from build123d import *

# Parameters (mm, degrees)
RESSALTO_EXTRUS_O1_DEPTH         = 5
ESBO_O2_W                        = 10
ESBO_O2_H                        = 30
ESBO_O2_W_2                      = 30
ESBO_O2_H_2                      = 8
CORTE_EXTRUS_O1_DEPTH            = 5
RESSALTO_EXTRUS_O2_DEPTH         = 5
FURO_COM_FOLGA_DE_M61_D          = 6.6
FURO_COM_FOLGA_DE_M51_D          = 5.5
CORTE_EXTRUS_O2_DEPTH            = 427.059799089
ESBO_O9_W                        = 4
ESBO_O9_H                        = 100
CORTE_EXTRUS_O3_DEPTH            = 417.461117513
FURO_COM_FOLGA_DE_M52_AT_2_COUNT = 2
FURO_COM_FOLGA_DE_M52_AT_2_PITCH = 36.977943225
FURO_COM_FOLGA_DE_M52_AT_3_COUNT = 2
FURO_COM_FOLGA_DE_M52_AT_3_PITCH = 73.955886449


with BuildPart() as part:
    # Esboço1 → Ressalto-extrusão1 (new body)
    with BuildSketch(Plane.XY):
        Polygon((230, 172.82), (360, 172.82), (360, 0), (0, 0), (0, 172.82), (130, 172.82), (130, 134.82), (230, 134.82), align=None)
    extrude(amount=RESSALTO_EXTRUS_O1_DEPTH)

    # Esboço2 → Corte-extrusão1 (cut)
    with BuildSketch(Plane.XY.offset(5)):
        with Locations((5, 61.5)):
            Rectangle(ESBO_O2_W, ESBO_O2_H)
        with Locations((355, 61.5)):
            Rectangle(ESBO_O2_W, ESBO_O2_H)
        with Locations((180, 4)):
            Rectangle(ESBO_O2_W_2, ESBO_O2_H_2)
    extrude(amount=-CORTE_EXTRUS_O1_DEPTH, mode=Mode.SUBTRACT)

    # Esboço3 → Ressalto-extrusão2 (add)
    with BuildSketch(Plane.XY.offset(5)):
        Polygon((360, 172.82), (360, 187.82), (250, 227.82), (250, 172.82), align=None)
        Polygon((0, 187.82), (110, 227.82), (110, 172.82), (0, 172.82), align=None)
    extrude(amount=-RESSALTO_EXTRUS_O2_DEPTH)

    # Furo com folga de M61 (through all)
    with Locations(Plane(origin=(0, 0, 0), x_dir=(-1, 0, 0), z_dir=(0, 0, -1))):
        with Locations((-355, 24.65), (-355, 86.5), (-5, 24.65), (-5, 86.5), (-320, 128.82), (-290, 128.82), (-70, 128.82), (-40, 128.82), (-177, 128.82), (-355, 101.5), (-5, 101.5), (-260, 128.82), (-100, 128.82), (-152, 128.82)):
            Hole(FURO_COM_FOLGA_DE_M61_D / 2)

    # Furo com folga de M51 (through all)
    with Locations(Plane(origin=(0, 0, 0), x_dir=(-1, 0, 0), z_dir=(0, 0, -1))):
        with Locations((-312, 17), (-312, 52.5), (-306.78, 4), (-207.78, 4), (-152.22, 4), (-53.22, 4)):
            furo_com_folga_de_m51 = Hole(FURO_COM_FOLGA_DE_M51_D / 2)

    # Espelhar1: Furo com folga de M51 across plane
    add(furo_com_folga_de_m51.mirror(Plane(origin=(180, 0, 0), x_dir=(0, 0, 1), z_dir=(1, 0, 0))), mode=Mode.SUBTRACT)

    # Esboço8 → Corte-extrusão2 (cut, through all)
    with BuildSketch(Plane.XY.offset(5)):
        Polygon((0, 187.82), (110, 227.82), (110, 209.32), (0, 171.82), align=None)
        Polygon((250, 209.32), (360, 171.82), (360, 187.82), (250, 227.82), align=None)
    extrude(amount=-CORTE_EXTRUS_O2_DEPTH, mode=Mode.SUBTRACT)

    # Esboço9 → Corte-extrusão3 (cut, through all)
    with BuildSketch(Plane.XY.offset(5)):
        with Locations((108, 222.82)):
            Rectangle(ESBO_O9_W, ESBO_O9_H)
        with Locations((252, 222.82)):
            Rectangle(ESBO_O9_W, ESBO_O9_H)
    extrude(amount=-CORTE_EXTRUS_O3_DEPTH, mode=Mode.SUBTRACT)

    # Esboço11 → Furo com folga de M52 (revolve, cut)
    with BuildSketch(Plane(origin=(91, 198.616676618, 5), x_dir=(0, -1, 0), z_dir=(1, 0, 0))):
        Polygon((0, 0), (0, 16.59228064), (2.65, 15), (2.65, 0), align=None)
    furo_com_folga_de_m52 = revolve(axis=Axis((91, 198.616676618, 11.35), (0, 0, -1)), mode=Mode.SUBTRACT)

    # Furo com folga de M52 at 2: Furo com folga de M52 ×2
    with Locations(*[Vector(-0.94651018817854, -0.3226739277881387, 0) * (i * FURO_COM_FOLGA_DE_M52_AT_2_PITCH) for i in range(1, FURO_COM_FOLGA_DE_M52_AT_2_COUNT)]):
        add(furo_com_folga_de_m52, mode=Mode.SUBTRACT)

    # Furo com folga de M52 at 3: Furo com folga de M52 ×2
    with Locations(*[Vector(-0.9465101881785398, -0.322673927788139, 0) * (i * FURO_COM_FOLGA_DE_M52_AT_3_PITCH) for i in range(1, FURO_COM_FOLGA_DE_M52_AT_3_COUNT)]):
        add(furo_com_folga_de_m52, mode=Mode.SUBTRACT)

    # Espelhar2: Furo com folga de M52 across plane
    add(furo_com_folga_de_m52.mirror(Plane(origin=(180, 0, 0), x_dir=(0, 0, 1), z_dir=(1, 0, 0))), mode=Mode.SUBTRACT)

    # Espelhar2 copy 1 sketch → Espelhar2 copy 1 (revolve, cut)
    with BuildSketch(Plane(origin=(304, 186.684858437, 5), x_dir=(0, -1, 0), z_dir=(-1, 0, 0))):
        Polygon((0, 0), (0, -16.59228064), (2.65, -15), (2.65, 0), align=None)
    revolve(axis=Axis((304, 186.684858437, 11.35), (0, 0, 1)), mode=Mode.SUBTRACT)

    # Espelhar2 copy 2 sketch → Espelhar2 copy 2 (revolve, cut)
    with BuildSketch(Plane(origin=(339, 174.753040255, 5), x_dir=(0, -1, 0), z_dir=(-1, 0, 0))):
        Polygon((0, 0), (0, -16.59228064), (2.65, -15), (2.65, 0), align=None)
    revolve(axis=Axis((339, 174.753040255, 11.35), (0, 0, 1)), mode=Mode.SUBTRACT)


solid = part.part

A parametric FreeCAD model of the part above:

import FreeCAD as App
import Part
import Sketcher
Q = App.Units.Quantity


def add_polygon(sketch, points):
    """Adds a closed chain of lines whose ends are joined by coincident constraints."""
    first, n = sketch.GeometryCount, len(points)
    for a, b in zip(points, points[1:] + points[:1]):
        sketch.addGeometry(Part.LineSegment(App.Vector(*a, 0), App.Vector(*b, 0)), False)
    for i in range(n):
        sketch.addConstraint(Sketcher.Constraint("Coincident", first + i, 2, first + (i + 1) % n, 1))

doc = App.newDocument("Part")
body = doc.addObject("PartDesign::Body", "Body")

# Sketch on XY plane
sketch1 = body.newObject("Sketcher::SketchObject", "Sketch")
sketch1.AttachmentSupport = (doc.getObject("XY_Plane"), [""])
sketch1.MapMode = "FlatFace"
add_polygon(sketch1, [(360, 173), (230, 173), (230, 135), (130, 135), (130, 173), (0, 173), (0, 0), (360, 0)])  # lines 0-7
sketch1.addConstraint(Sketcher.Constraint("Horizontal", 0))
sketch1.addConstraint(Sketcher.Constraint("Vertical", 1))
sketch1.addConstraint(Sketcher.Constraint("Horizontal", 2))
sketch1.addConstraint(Sketcher.Constraint("Vertical", 3))
sketch1.addConstraint(Sketcher.Constraint("Horizontal", 4))
sketch1.addConstraint(Sketcher.Constraint("Vertical", 5))
sketch1.addConstraint(Sketcher.Constraint("Horizontal", 6))
sketch1.addConstraint(Sketcher.Constraint("Vertical", 7))
sketch1.addConstraint(Sketcher.Constraint("Coincident", 5, 2, -1, 1))
sketch1.addConstraint(Sketcher.Constraint("Horizontal", 0, 2, 3, 2))
sketch1.addConstraint(Sketcher.Constraint("Equal", 0, 4))
sketch1.addConstraint(Sketcher.Constraint("DistanceX", 0, 2, 0, 1, 130.0))
sketch1.addConstraint(Sketcher.Constraint("DistanceX", 2, 2, 2, 1, 100.0))
sketch1.addConstraint(Sketcher.Constraint("DistanceY", 1, 2, 1, 1, 38.0))
sketch1.addConstraint(Sketcher.Constraint("DistanceY", 5, 2, 5, 1, 172.82))
pad1 = body.newObject("PartDesign::Pad", "Pad")
pad1.Profile = sketch1
pad1.Length = 5

# Sketch on XY plane
sketch2 = body.newObject("Sketcher::SketchObject", "Sketch001")
sketch2.AttachmentSupport = (doc.getObject("XY_Plane"), [""])
sketch2.MapMode = "FlatFace"
sketch2.AttachmentOffset = App.Placement(App.Vector(0, 0, 5), App.Rotation())
add_polygon(sketch2, [(0, 76), (0, 46), (10, 46), (10, 76)])  # lines 0-3
add_polygon(sketch2, [(350, 76), (350, 46), (360, 46), (360, 76)])  # lines 4-7
add_polygon(sketch2, [(165, 8), (165, 0), (195, 0), (195, 8)])  # lines 8-11
sketch2.addConstraint(Sketcher.Constraint("Vertical", 0))
sketch2.addConstraint(Sketcher.Constraint("Horizontal", 1))
sketch2.addConstraint(Sketcher.Constraint("Vertical", 2))
sketch2.addConstraint(Sketcher.Constraint("Horizontal", 3))
sketch2.addConstraint(Sketcher.Constraint("Vertical", 4))
sketch2.addConstraint(Sketcher.Constraint("Horizontal", 5))
sketch2.addConstraint(Sketcher.Constraint("Vertical", 6))
sketch2.addConstraint(Sketcher.Constraint("Horizontal", 7))
sketch2.addConstraint(Sketcher.Constraint("Vertical", 8))
sketch2.addConstraint(Sketcher.Constraint("Horizontal", 9))
sketch2.addConstraint(Sketcher.Constraint("Vertical", 10))
sketch2.addConstraint(Sketcher.Constraint("Horizontal", 11))
sketch2.addConstraint(Sketcher.Constraint("PointOnObject", 0, 2, -2))
sketch2.addConstraint(Sketcher.Constraint("PointOnObject", 8, 2, -1))
sketch2.addConstraint(Sketcher.Constraint("Horizontal", 1, 2, 4, 2))
sketch2.addConstraint(Sketcher.Constraint("Horizontal", 3, 2, 6, 2))
sketch2.addConstraint(Sketcher.Constraint("Equal", 3, 5))
sketch2.addConstraint(Sketcher.Constraint("Equal", 11, 0))
sketch2.addConstraint(Sketcher.Constraint("DistanceX", 1, 1, 1, 2, 10.0))
sketch2.addConstraint(Sketcher.Constraint("DistanceX", 9, 1, 9, 2, 30.0))
sketch2.addConstraint(Sketcher.Constraint("DistanceY", 8, 2, 8, 1, 8.0))
sketch2.addConstraint(Sketcher.Constraint("DistanceX", -1, 1, 4, 2, 350.0))
sketch2.addConstraint(Sketcher.Constraint("DistanceX", -1, 1, 8, 2, 165.0))
sketch2.addConstraint(Sketcher.Constraint("DistanceY", -1, 1, 0, 2, 46.5))
pocket1 = body.newObject("PartDesign::Pocket", "Pocket")
pocket1.Profile = sketch2
pocket1.Length = 5

# Sketch on XY plane
sketch3 = body.newObject("Sketcher::SketchObject", "Sketch002")
sketch3.AttachmentSupport = (doc.getObject("XY_Plane"), [""])
sketch3.MapMode = "FlatFace"
sketch3.AttachmentOffset = App.Placement(App.Vector(0, 0, 5), App.Rotation())
add_polygon(sketch3, [(360, 173), (360, 188), (250, 228), (250, 173)])  # lines 0-3
add_polygon(sketch3, [(110, 228), (0, 188), (0, 173), (110, 173)])  # lines 4-7
sketch3.addConstraint(Sketcher.Constraint("Vertical", 0))
sketch3.addConstraint(Sketcher.Constraint("Vertical", 2))
sketch3.addConstraint(Sketcher.Constraint("Horizontal", 3))
sketch3.addConstraint(Sketcher.Constraint("Vertical", 5))
sketch3.addConstraint(Sketcher.Constraint("Horizontal", 6))
sketch3.addConstraint(Sketcher.Constraint("Vertical", 7))
sketch3.addConstraint(Sketcher.Constraint("PointOnObject", 4, 2, -2))
sketch3.addConstraint(Sketcher.Constraint("Horizontal", 0, 2, 4, 2))
sketch3.addConstraint(Sketcher.Constraint("Horizontal", 3, 2, 5, 2))
sketch3.addConstraint(Sketcher.Constraint("Horizontal", 1, 2, 7, 2))
sketch3.addConstraint(Sketcher.Constraint("Equal", 3, 6))
sketch3.addConstraint(Sketcher.Constraint("DistanceX", 3, 1, 3, 2, 110.0))
sketch3.addConstraint(Sketcher.Constraint("DistanceY", 0, 1, 0, 2, 15.0))
sketch3.addConstraint(Sketcher.Constraint("DistanceY", 2, 2, 2, 1, 55.0))
sketch3.addConstraint(Sketcher.Constraint("DistanceX", -1, 1, 0, 2, 360.0))
sketch3.addConstraint(Sketcher.Constraint("DistanceY", -1, 1, 0, 2, 187.82))
pad2 = body.newObject("PartDesign::Pad", "Pad001")
pad2.Profile = sketch3
pad2.Length = 5
pad2.Reversed = True

# Sketch on XY plane
sketch4 = body.newObject("Sketcher::SketchObject", "Sketch003")
sketch4.AttachmentSupport = (doc.getObject("XY_Plane"), [""])
sketch4.MapMode = "FlatFace"
sketch4.addGeometry(Part.Circle(App.Vector(355, 24.6, 0), App.Vector(0, 0, 1), 3.3), False)
sketch4.addGeometry(Part.Circle(App.Vector(355, 86.5, 0), App.Vector(0, 0, 1), 3.3), False)
sketch4.addGeometry(Part.Circle(App.Vector(5, 24.6, 0), App.Vector(0, 0, 1), 3.3), False)
sketch4.addGeometry(Part.Circle(App.Vector(5, 86.5, 0), App.Vector(0, 0, 1), 3.3), False)
sketch4.addGeometry(Part.Circle(App.Vector(320, 128.8, 0), App.Vector(0, 0, 1), 3.3), False)
sketch4.addGeometry(Part.Circle(App.Vector(290, 128.8, 0), App.Vector(0, 0, 1), 3.3), False)
sketch4.addGeometry(Part.Circle(App.Vector(70, 128.8, 0), App.Vector(0, 0, 1), 3.3), False)
sketch4.addGeometry(Part.Circle(App.Vector(40, 128.8, 0), App.Vector(0, 0, 1), 3.3), False)
sketch4.addGeometry(Part.Circle(App.Vector(177, 128.8, 0), App.Vector(0, 0, 1), 3.3), False)
sketch4.addGeometry(Part.Circle(App.Vector(355, 101.5, 0), App.Vector(0, 0, 1), 3.3), False)
sketch4.addGeometry(Part.Circle(App.Vector(5, 101.5, 0), App.Vector(0, 0, 1), 3.3), False)
sketch4.addGeometry(Part.Circle(App.Vector(260, 128.8, 0), App.Vector(0, 0, 1), 3.3), False)
sketch4.addGeometry(Part.Circle(App.Vector(100, 128.8, 0), App.Vector(0, 0, 1), 3.3), False)
sketch4.addGeometry(Part.Circle(App.Vector(152, 128.8, 0), App.Vector(0, 0, 1), 3.3), False)
sketch4.addConstraint(Sketcher.Constraint("Equal", 0, 1))
sketch4.addConstraint(Sketcher.Constraint("Equal", 1, 2))
sketch4.addConstraint(Sketcher.Constraint("Equal", 2, 3))
sketch4.addConstraint(Sketcher.Constraint("Equal", 3, 4))
sketch4.addConstraint(Sketcher.Constraint("Equal", 4, 5))
sketch4.addConstraint(Sketcher.Constraint("Equal", 5, 6))
sketch4.addConstraint(Sketcher.Constraint("Equal", 6, 7))
sketch4.addConstraint(Sketcher.Constraint("Equal", 7, 8))
sketch4.addConstraint(Sketcher.Constraint("Equal", 8, 9))
sketch4.addConstraint(Sketcher.Constraint("Equal", 9, 10))
sketch4.addConstraint(Sketcher.Constraint("Equal", 10, 11))
sketch4.addConstraint(Sketcher.Constraint("Equal", 11, 12))
sketch4.addConstraint(Sketcher.Constraint("Equal", 12, 13))
sketch4.addConstraint(Sketcher.Constraint("Horizontal", 0, 3, 2, 3))
sketch4.addConstraint(Sketcher.Constraint("Horizontal", 1, 3, 3, 3))
sketch4.addConstraint(Sketcher.Constraint("Horizontal", 4, 3, 5, 3))
sketch4.addConstraint(Sketcher.Constraint("Horizontal", 5, 3, 6, 3))
sketch4.addConstraint(Sketcher.Constraint("Horizontal", 6, 3, 7, 3))
sketch4.addConstraint(Sketcher.Constraint("Horizontal", 7, 3, 8, 3))
sketch4.addConstraint(Sketcher.Constraint("Horizontal", 9, 3, 10, 3))
sketch4.addConstraint(Sketcher.Constraint("Horizontal", 8, 3, 11, 3))
sketch4.addConstraint(Sketcher.Constraint("Horizontal", 11, 3, 12, 3))
sketch4.addConstraint(Sketcher.Constraint("Horizontal", 12, 3, 13, 3))
sketch4.addConstraint(Sketcher.Constraint("Vertical", 0, 3, 1, 3))
sketch4.addConstraint(Sketcher.Constraint("Vertical", 2, 3, 3, 3))
sketch4.addConstraint(Sketcher.Constraint("Vertical", 1, 3, 9, 3))
sketch4.addConstraint(Sketcher.Constraint("Vertical", 3, 3, 10, 3))
sketch4.addConstraint(Sketcher.Constraint("Diameter", 0, 6.6))
sketch4.addConstraint(Sketcher.Constraint("DistanceX", -1, 1, 0, 3, 355.0))
sketch4.addConstraint(Sketcher.Constraint("DistanceX", -1, 1, 2, 3, 5.0))
sketch4.addConstraint(Sketcher.Constraint("DistanceX", -1, 1, 4, 3, 320.0))
sketch4.addConstraint(Sketcher.Constraint("DistanceX", -1, 1, 5, 3, 290.0))
sketch4.addConstraint(Sketcher.Constraint("DistanceX", -1, 1, 6, 3, 70.0))
sketch4.addConstraint(Sketcher.Constraint("DistanceX", -1, 1, 7, 3, 40.0))
sketch4.addConstraint(Sketcher.Constraint("DistanceX", -1, 1, 8, 3, 177.0))
sketch4.addConstraint(Sketcher.Constraint("DistanceX", -1, 1, 11, 3, 260.0))
sketch4.addConstraint(Sketcher.Constraint("DistanceX", -1, 1, 12, 3, 100.0))
sketch4.addConstraint(Sketcher.Constraint("DistanceX", -1, 1, 13, 3, 152.0))
sketch4.addConstraint(Sketcher.Constraint("DistanceY", 1, 3, 9, 3, 15.0))
sketch4.addConstraint(Sketcher.Constraint("DistanceY", -1, 1, 1, 3, 86.5))
sketch4.addConstraint(Sketcher.Constraint("DistanceY", -1, 1, 0, 3, 24.65))
sketch4.addConstraint(Sketcher.Constraint("DistanceY", -1, 1, 4, 3, 128.82))
doc.recompute()
hole = body.newObject("PartDesign::Hole", "Hole")
hole.Profile = sketch4
hole.ThreadType = "None"
hole.Diameter = 6.6
hole.DepthType = "ThroughAll"
hole.Reversed = True

# Sketch on XY plane
sketch5 = body.newObject("Sketcher::SketchObject", "Sketch004")
sketch5.AttachmentSupport = (doc.getObject("XY_Plane"), [""])
sketch5.MapMode = "FlatFace"
sketch5.addGeometry(Part.Circle(App.Vector(312, 17, 0), App.Vector(0, 0, 1), 2.8), False)
sketch5.addGeometry(Part.Circle(App.Vector(312, 52.5, 0), App.Vector(0, 0, 1), 2.8), False)
sketch5.addGeometry(Part.Circle(App.Vector(306.8, 4, 0), App.Vector(0, 0, 1), 2.8), False)
sketch5.addGeometry(Part.Circle(App.Vector(207.8, 4, 0), App.Vector(0, 0, 1), 2.8), False)
sketch5.addGeometry(Part.Circle(App.Vector(152.2, 4, 0), App.Vector(0, 0, 1), 2.8), False)
sketch5.addGeometry(Part.Circle(App.Vector(53.2, 4, 0), App.Vector(0, 0, 1), 2.8), False)
sketch5.addConstraint(Sketcher.Constraint("Equal", 0, 1))
sketch5.addConstraint(Sketcher.Constraint("Equal", 1, 2))
sketch5.addConstraint(Sketcher.Constraint("Equal", 2, 3))
sketch5.addConstraint(Sketcher.Constraint("Equal", 3, 4))
sketch5.addConstraint(Sketcher.Constraint("Equal", 4, 5))
sketch5.addConstraint(Sketcher.Constraint("Horizontal", 2, 3, 3, 3))
sketch5.addConstraint(Sketcher.Constraint("Horizontal", 3, 3, 4, 3))
sketch5.addConstraint(Sketcher.Constraint("Horizontal", 4, 3, 5, 3))
sketch5.addConstraint(Sketcher.Constraint("Vertical", 0, 3, 1, 3))
sketch5.addConstraint(Sketcher.Constraint("Diameter", 0, 5.5))
sketch5.addConstraint(Sketcher.Constraint("DistanceX", -1, 1, 0, 3, 312.0))
sketch5.addConstraint(Sketcher.Constraint("DistanceY", -1, 1, 0, 3, 17.0))
sketch5.addConstraint(Sketcher.Constraint("DistanceY", -1, 1, 2, 3, 4.0))
sketch5.addConstraint(Sketcher.Constraint("DistanceX", 3, 3, 2, 3, 99.0))
sketch5.addConstraint(Sketcher.Constraint("DistanceX", 5, 3, 4, 3, 99.0))
sketch5.addConstraint(Sketcher.Constraint("DistanceY", -1, 1, 1, 3, 52.5))
sketch5.addConstraint(Sketcher.Constraint("DistanceX", -1, 1, 2, 3, 306.78))
sketch5.addConstraint(Sketcher.Constraint("DistanceX", -1, 1, 4, 3, 152.22))
doc.recompute()
hole2 = body.newObject("PartDesign::Hole", "Hole001")
hole2.Profile = sketch5
hole2.ThreadType = "None"
hole2.Diameter = 5.5
hole2.DepthType = "ThroughAll"
hole2.Reversed = True
doc.recompute()

datumplane = body.newObject("PartDesign::Plane", "DatumPlane")
datumplane.AttachmentSupport = (doc.getObject("YZ_Plane"), [""])
datumplane.MapMode = "FlatFace"
datumplane.AttachmentOffset = App.Placement(App.Vector(0, 0, 180), App.Rotation())
mirrored = body.newObject("PartDesign::Mirrored", "Mirrored")
mirrored.Originals = [hole2]
mirrored.MirrorPlane = (datumplane, [""])
body.Tip = mirrored

# Sketch on XY plane
sketch6 = body.newObject("Sketcher::SketchObject", "Sketch005")
sketch6.AttachmentSupport = (doc.getObject("XY_Plane"), [""])
sketch6.MapMode = "FlatFace"
sketch6.AttachmentOffset = App.Placement(App.Vector(0, 0, 5), App.Rotation())
add_polygon(sketch6, [(110, 228), (0, 188), (0, 172), (110, 209)])  # lines 0-3
add_polygon(sketch6, [(250, 209), (360, 172), (360, 188), (250, 228)])  # lines 4-7
sketch6.addConstraint(Sketcher.Constraint("Vertical", 1))
sketch6.addConstraint(Sketcher.Constraint("Vertical", 3))
sketch6.addConstraint(Sketcher.Constraint("Vertical", 5))
sketch6.addConstraint(Sketcher.Constraint("Vertical", 7))
sketch6.addConstraint(Sketcher.Constraint("PointOnObject", 0, 2, -2))
sketch6.addConstraint(Sketcher.Constraint("Horizontal", 1, 2, 4, 2))
sketch6.addConstraint(Sketcher.Constraint("Horizontal", 0, 2, 5, 2))
sketch6.addConstraint(Sketcher.Constraint("Horizontal", 3, 2, 6, 2))
sketch6.addConstraint(Sketcher.Constraint("Horizontal", 2, 2, 7, 2))
sketch6.addConstraint(Sketcher.Constraint("Equal", 2, 4))
sketch6.addConstraint(Sketcher.Constraint("DistanceY", 1, 2, 1, 1, 16.0))
sketch6.addConstraint(Sketcher.Constraint("DistanceY", 3, 1, 3, 2, 18.5))
sketch6.addConstraint(Sketcher.Constraint("DistanceX", -1, 1, 2, 2, 110.0))
sketch6.addConstraint(Sketcher.Constraint("DistanceX", -1, 1, 4, 2, 360.0))
sketch6.addConstraint(Sketcher.Constraint("DistanceY", 0, 2, 3, 2, 40.0))
sketch6.addConstraint(Sketcher.Constraint("DistanceY", -1, 1, 0, 2, 187.82))
pocket2 = body.newObject("PartDesign::Pocket", "Pocket001")
pocket2.Profile = sketch6
pocket2.Type = "ThroughAll"

# Sketch on XY plane
sketch7 = body.newObject("Sketcher::SketchObject", "Sketch006")
sketch7.AttachmentSupport = (doc.getObject("XY_Plane"), [""])
sketch7.MapMode = "FlatFace"
sketch7.AttachmentOffset = App.Placement(App.Vector(0, 0, 5), App.Rotation())
add_polygon(sketch7, [(106, 272.8), (106, 172.8), (110, 172.8), (110, 272.8)])  # lines 0-3
add_polygon(sketch7, [(250, 272.8), (250, 172.8), (254, 172.8), (254, 272.8)])  # lines 4-7
sketch7.addConstraint(Sketcher.Constraint("Vertical", 0))
sketch7.addConstraint(Sketcher.Constraint("Horizontal", 1))
sketch7.addConstraint(Sketcher.Constraint("Vertical", 2))
sketch7.addConstraint(Sketcher.Constraint("Horizontal", 3))
sketch7.addConstraint(Sketcher.Constraint("Vertical", 4))
sketch7.addConstraint(Sketcher.Constraint("Horizontal", 5))
sketch7.addConstraint(Sketcher.Constraint("Vertical", 6))
sketch7.addConstraint(Sketcher.Constraint("Horizontal", 7))
sketch7.addConstraint(Sketcher.Constraint("Horizontal", 1, 2, 4, 2))
sketch7.addConstraint(Sketcher.Constraint("Horizontal", 3, 2, 6, 2))
sketch7.addConstraint(Sketcher.Constraint("Equal", 3, 5))
sketch7.addConstraint(Sketcher.Constraint("DistanceX", 1, 1, 1, 2, 4.0))
sketch7.addConstraint(Sketcher.Constraint("DistanceY", 0, 2, 0, 1, 100.0))
sketch7.addConstraint(Sketcher.Constraint("DistanceX", -1, 1, 0, 2, 106.0))
sketch7.addConstraint(Sketcher.Constraint("DistanceX", -1, 1, 4, 2, 250.0))
sketch7.addConstraint(Sketcher.Constraint("DistanceY", -1, 1, 0, 2, 172.82))
pocket3 = body.newObject("PartDesign::Pocket", "Pocket002")
pocket3.Profile = sketch7
pocket3.Type = "ThroughAll"

# Sketch on YZ plane
sketch8 = body.newObject("Sketcher::SketchObject", "Sketch007")
sketch8.AttachmentSupport = (doc.getObject("YZ_Plane"), [""])
sketch8.MapMode = "FlatFace"
sketch8.AttachmentOffset = App.Placement(App.Vector(0, 0, 91), App.Rotation())
add_polygon(sketch8, [(198.6, -11.6), (198.6, 5), (196, 5), (196, -10)])  # lines 0-3
sketch8.addGeometry(Part.LineSegment(App.Vector(198.6, 5, 0), App.Vector(198.6, -11.6, 0)), True)  # axis
sketch8.addConstraint(Sketcher.Constraint("Vertical", 0))
sketch8.addConstraint(Sketcher.Constraint("Horizontal", 1))
sketch8.addConstraint(Sketcher.Constraint("Vertical", 2))
sketch8.addConstraint(Sketcher.Constraint("Vertical", 4))
sketch8.addConstraint(Sketcher.Constraint("Coincident", 4, 1, 0, 2))
sketch8.addConstraint(Sketcher.Constraint("Equal", 0, 4))
sketch8.addConstraint(Sketcher.Constraint("DistanceY", 2, 2, 2, 1, 15.0))
sketch8.addConstraint(Sketcher.Constraint("Angle", 3, Q("-31 deg")))
sketch8.addConstraint(Sketcher.Constraint("DistanceY", -1, 1, 0, 2, 5.0))
sketch8.addConstraint(Sketcher.Constraint("DistanceX", 1, 2, 1, 1, 2.65))
sketch8.addConstraint(Sketcher.Constraint("DistanceX", -1, 1, 0, 2, 198.616677))
groove = body.newObject("PartDesign::Groove", "Groove")
groove.Profile = sketch8
groove.ReferenceAxis = (sketch8, ["Axis0"])
groove.Angle = 360
doc.recompute()

datumline = body.newObject("PartDesign::Line", "DatumLine")
datumline.Placement = App.Placement(App.Vector(0, 0, 0), App.Rotation(App.Vector(0, 0, 1), App.Vector(-0.946510188, -0.322673928, 0)))
linearpattern = body.newObject("PartDesign::LinearPattern", "LinearPattern")
linearpattern.Originals = [groove]
linearpattern.Direction = (datumline, [""])
linearpattern.Mode = "offset"
linearpattern.Offset = 36.977943
linearpattern.Occurrences = 2
body.Tip = linearpattern
doc.recompute()

datumline2 = body.newObject("PartDesign::Line", "DatumLine001")
datumline2.Placement = App.Placement(App.Vector(0, 0, 0), App.Rotation(App.Vector(0, 0, 1), App.Vector(-0.946510188, -0.322673928, 0)))
linearpattern2 = body.newObject("PartDesign::LinearPattern", "LinearPattern001")
linearpattern2.Originals = [groove]
linearpattern2.Direction = (datumline2, [""])
linearpattern2.Mode = "offset"
linearpattern2.Offset = 73.955886
linearpattern2.Occurrences = 2
body.Tip = linearpattern2
doc.recompute()

datumplane2 = body.newObject("PartDesign::Plane", "DatumPlane001")
datumplane2.AttachmentSupport = (doc.getObject("YZ_Plane"), [""])
datumplane2.MapMode = "FlatFace"
datumplane2.AttachmentOffset = App.Placement(App.Vector(0, 0, 180), App.Rotation())
mirrored2 = body.newObject("PartDesign::Mirrored", "Mirrored001")
mirrored2.Originals = [groove]
mirrored2.MirrorPlane = (datumplane2, [""])
body.Tip = mirrored2

# Sketch on YZ plane
sketch9 = body.newObject("Sketcher::SketchObject", "Sketch008")
sketch9.AttachmentSupport = (doc.getObject("YZ_Plane"), [""])
sketch9.MapMode = "FlatFace"
sketch9.AttachmentOffset = App.Placement(App.Vector(0, 0, 304), App.Rotation())
add_polygon(sketch9, [(186.7, 5), (186.7, -11.6), (184, -10), (184, 5)])  # lines 0-3
sketch9.addGeometry(Part.LineSegment(App.Vector(186.7, -11.6, 0), App.Vector(186.7, 5, 0)), True)  # axis
sketch9.addConstraint(Sketcher.Constraint("Vertical", 0))
sketch9.addConstraint(Sketcher.Constraint("Vertical", 2))
sketch9.addConstraint(Sketcher.Constraint("Horizontal", 3))
sketch9.addConstraint(Sketcher.Constraint("Vertical", 4))
sketch9.addConstraint(Sketcher.Constraint("Coincident", 4, 1, 0, 2))
sketch9.addConstraint(Sketcher.Constraint("Horizontal", 2, 2, 4, 2))
sketch9.addConstraint(Sketcher.Constraint("DistanceY", 2, 1, 2, 2, 15.0))
sketch9.addConstraint(Sketcher.Constraint("Angle", 1, Q("149 deg")))
sketch9.addConstraint(Sketcher.Constraint("DistanceY", 1, 2, -1, 1, 10.0))
sketch9.addConstraint(Sketcher.Constraint("DistanceX", 3, 1, 3, 2, 2.65))
sketch9.addConstraint(Sketcher.Constraint("DistanceX", -1, 1, 0, 2, 186.684858))
groove2 = body.newObject("PartDesign::Groove", "Groove001")
groove2.Profile = sketch9
groove2.ReferenceAxis = (sketch9, ["Axis0"])
groove2.Angle = 360

# Sketch on YZ plane
sketch10 = body.newObject("Sketcher::SketchObject", "Sketch009")
sketch10.AttachmentSupport = (doc.getObject("YZ_Plane"), [""])
sketch10.MapMode = "FlatFace"
sketch10.AttachmentOffset = App.Placement(App.Vector(0, 0, 339), App.Rotation())
add_polygon(sketch10, [(174.8, 5), (174.8, -11.6), (172.1, -10), (172.1, 5)])  # lines 0-3
sketch10.addGeometry(Part.LineSegment(App.Vector(174.8, -11.6, 0), App.Vector(174.8, 5, 0)), True)  # axis
sketch10.addConstraint(Sketcher.Constraint("Vertical", 0))
sketch10.addConstraint(Sketcher.Constraint("Vertical", 2))
sketch10.addConstraint(Sketcher.Constraint("Horizontal", 3))
sketch10.addConstraint(Sketcher.Constraint("Vertical", 4))
sketch10.addConstraint(Sketcher.Constraint("Coincident", 4, 1, 0, 2))
sketch10.addConstraint(Sketcher.Constraint("Horizontal", 2, 2, 4, 2))
sketch10.addConstraint(Sketcher.Constraint("DistanceY", 2, 1, 2, 2, 15.0))
sketch10.addConstraint(Sketcher.Constraint("Angle", 1, Q("149 deg")))
sketch10.addConstraint(Sketcher.Constraint("DistanceY", 1, 2, -1, 1, 10.0))
sketch10.addConstraint(Sketcher.Constraint("DistanceX", 3, 1, 3, 2, 2.65))
sketch10.addConstraint(Sketcher.Constraint("DistanceX", -1, 1, 0, 2, 174.75304))
groove3 = body.newObject("PartDesign::Groove", "Groove002")
groove3.Profile = sketch10
groove3.ReferenceAxis = (sketch10, ["Axis0"])
groove3.Angle = 360

doc.recompute()
